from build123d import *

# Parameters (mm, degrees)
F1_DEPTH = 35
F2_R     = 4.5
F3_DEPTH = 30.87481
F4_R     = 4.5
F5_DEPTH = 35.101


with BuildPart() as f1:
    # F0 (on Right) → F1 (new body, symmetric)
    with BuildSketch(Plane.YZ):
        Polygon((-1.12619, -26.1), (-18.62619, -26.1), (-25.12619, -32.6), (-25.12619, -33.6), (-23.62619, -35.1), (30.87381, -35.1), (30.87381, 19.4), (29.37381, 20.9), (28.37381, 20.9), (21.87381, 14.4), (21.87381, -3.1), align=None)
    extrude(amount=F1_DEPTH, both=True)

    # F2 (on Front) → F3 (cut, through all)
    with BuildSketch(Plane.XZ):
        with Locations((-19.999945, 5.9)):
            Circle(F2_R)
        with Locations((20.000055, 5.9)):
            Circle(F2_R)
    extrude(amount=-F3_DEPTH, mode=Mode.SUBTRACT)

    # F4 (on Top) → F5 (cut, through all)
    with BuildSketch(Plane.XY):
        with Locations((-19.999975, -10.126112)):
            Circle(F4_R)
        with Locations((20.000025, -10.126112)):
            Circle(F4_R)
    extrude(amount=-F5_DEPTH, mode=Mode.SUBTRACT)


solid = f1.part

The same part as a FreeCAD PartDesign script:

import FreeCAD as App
import Part
import Sketcher
from FreeCAD import Vector


def add_polygon(sketch, points):
    """Adds a closed chain of lines whose ends are joined by coincident constraints."""
    first, n = sketch.GeometryCount, len(points)
    for a, b in zip(points, points[1:] + points[:1]):
        sketch.addGeometry(Part.LineSegment(App.Vector(*a, 0), App.Vector(*b, 0)), False)
    for i in range(n):
        sketch.addConstraint(Sketcher.Constraint("Coincident", first + i, 2, first + (i + 1) % n, 1))

doc = App.newDocument("Part")
body = doc.addObject("PartDesign::Body", "Body")

sketch1 = body.newObject("Sketcher::SketchObject", "Sketch")
sketch1.AttachmentSupport = (doc.getObject("YZ_Plane"), [""])
sketch1.MapMode = "FlatFace"
add_polygon(sketch1, [(-1.1, -26.1), (-18.6, -26.1), (-25.1, -32.6), (-25.1, -33.6), (-23.6, -35.1), (30.9, -35.1), (30.9, 19.4), (29.4, 20.9), (28.4, 20.9), (21.9, 14.4), (21.9, -3.1)])
sketch1.addConstraint([
    Sketcher.Constraint("Horizontal", 0),
    Sketcher.Constraint("Vertical", 2),
    Sketcher.Constraint("Horizontal", 4),
    Sketcher.Constraint("Vertical", 5),
    Sketcher.Constraint("Horizontal", 7),
    Sketcher.Constraint("Vertical", 9),
    Sketcher.Constraint("Perpendicular", 1, 3),
    Sketcher.Constraint("Parallel", 3, 6),
    Sketcher.Constraint("Perpendicular", 6, 8),
    Sketcher.Constraint("Parallel", 8, 10),
    Sketcher.Constraint("Equal", 7, 2),
    Sketcher.Constraint("Equal", 4, 5),
    Sketcher.Constraint("Equal", 0, 9),
    Sketcher.Constraint("Equal", 3, 6),
    Sketcher.Constraint("Equal", 1, 8),
    Sketcher.Constraint("DistanceX", 7, 2, 7, 1, 1.0),
    Sketcher.Constraint("DistanceX", 0, 2, 0, 1, 17.5),
    Sketcher.Constraint("DistanceX", 4, 1, 4, 2, 54.5),
    Sketcher.Constraint("DistanceX", 3, 2, 0, 2, 5.0),
    Sketcher.Constraint("DistanceY", 3, 2, 0, 2, 9.0),
    Sketcher.Constraint("DistanceY", 0, 2, -1, 1, 26.1),
    Sketcher.Constraint("DistanceX", 0, 2, -1, 1, 18.62619),
])
pad1 = body.newObject("PartDesign::Pad", "Pad")
pad1.Profile = sketch1
pad1.Length = 70
pad1.Midplane = True

sketch2 = body.newObject("Sketcher::SketchObject", "Sketch001")
sketch2.AttachmentSupport = (doc.getObject("XZ_Plane"), [""])
sketch2.MapMode = "FlatFace"
sketch2.addGeometry([
    Part.Circle(Vector(-20, 5.9, 0), Vector(0, 0, 1), 4.5),
    Part.Circle(Vector(20, 5.9, 0), Vector(0, 0, 1), 4.5),
], False)
sketch2.addConstraint([
    Sketcher.Constraint("Equal", 0, 1),
    Sketcher.Constraint("Horizontal", 0, 3, 1, 3),
    Sketcher.Constraint("Diameter", 0, 9.0),
    Sketcher.Constraint("DistanceX", 0, 3, 1, 3, 40.0),
    Sketcher.Constraint("DistanceY", -1, 1, 0, 3, 5.9),
    Sketcher.Constraint("DistanceX", 0, 3, -1, 1, 19.999945),
])
pocket1 = body.newObject("PartDesign::Pocket", "Pocket")
pocket1.Profile = sketch2
pocket1.Type = "ThroughAll"

sketch3 = body.newObject("Sketcher::SketchObject", "Sketch002")
sketch3.AttachmentSupport = (doc.getObject("XY_Plane"), [""])
sketch3.MapMode = "FlatFace"
sketch3.addGeometry([
    Part.Circle(Vector(-20, -10.1, 0), Vector(0, 0, 1), 4.5),
    Part.Circle(Vector(20, -10.1, 0), Vector(0, 0, 1), 4.5),
], False)
sketch3.addConstraint([
    Sketcher.Constraint("Equal", 0, 1),
    Sketcher.Constraint("Horizontal", 0, 3, 1, 3),
    Sketcher.Constraint("Diameter", 0, 9.0),
    Sketcher.Constraint("DistanceX", 0, 3, 1, 3, 40.0),
    Sketcher.Constraint("DistanceY", 0, 3, -1, 1, 10.126112),
    Sketcher.Constraint("DistanceX", 0, 3, -1, 1, 19.999975),
])
pocket2 = body.newObject("PartDesign::Pocket", "Pocket001")
pocket2.Profile = sketch3
pocket2.Type = "ThroughAll"

doc.recompute()
